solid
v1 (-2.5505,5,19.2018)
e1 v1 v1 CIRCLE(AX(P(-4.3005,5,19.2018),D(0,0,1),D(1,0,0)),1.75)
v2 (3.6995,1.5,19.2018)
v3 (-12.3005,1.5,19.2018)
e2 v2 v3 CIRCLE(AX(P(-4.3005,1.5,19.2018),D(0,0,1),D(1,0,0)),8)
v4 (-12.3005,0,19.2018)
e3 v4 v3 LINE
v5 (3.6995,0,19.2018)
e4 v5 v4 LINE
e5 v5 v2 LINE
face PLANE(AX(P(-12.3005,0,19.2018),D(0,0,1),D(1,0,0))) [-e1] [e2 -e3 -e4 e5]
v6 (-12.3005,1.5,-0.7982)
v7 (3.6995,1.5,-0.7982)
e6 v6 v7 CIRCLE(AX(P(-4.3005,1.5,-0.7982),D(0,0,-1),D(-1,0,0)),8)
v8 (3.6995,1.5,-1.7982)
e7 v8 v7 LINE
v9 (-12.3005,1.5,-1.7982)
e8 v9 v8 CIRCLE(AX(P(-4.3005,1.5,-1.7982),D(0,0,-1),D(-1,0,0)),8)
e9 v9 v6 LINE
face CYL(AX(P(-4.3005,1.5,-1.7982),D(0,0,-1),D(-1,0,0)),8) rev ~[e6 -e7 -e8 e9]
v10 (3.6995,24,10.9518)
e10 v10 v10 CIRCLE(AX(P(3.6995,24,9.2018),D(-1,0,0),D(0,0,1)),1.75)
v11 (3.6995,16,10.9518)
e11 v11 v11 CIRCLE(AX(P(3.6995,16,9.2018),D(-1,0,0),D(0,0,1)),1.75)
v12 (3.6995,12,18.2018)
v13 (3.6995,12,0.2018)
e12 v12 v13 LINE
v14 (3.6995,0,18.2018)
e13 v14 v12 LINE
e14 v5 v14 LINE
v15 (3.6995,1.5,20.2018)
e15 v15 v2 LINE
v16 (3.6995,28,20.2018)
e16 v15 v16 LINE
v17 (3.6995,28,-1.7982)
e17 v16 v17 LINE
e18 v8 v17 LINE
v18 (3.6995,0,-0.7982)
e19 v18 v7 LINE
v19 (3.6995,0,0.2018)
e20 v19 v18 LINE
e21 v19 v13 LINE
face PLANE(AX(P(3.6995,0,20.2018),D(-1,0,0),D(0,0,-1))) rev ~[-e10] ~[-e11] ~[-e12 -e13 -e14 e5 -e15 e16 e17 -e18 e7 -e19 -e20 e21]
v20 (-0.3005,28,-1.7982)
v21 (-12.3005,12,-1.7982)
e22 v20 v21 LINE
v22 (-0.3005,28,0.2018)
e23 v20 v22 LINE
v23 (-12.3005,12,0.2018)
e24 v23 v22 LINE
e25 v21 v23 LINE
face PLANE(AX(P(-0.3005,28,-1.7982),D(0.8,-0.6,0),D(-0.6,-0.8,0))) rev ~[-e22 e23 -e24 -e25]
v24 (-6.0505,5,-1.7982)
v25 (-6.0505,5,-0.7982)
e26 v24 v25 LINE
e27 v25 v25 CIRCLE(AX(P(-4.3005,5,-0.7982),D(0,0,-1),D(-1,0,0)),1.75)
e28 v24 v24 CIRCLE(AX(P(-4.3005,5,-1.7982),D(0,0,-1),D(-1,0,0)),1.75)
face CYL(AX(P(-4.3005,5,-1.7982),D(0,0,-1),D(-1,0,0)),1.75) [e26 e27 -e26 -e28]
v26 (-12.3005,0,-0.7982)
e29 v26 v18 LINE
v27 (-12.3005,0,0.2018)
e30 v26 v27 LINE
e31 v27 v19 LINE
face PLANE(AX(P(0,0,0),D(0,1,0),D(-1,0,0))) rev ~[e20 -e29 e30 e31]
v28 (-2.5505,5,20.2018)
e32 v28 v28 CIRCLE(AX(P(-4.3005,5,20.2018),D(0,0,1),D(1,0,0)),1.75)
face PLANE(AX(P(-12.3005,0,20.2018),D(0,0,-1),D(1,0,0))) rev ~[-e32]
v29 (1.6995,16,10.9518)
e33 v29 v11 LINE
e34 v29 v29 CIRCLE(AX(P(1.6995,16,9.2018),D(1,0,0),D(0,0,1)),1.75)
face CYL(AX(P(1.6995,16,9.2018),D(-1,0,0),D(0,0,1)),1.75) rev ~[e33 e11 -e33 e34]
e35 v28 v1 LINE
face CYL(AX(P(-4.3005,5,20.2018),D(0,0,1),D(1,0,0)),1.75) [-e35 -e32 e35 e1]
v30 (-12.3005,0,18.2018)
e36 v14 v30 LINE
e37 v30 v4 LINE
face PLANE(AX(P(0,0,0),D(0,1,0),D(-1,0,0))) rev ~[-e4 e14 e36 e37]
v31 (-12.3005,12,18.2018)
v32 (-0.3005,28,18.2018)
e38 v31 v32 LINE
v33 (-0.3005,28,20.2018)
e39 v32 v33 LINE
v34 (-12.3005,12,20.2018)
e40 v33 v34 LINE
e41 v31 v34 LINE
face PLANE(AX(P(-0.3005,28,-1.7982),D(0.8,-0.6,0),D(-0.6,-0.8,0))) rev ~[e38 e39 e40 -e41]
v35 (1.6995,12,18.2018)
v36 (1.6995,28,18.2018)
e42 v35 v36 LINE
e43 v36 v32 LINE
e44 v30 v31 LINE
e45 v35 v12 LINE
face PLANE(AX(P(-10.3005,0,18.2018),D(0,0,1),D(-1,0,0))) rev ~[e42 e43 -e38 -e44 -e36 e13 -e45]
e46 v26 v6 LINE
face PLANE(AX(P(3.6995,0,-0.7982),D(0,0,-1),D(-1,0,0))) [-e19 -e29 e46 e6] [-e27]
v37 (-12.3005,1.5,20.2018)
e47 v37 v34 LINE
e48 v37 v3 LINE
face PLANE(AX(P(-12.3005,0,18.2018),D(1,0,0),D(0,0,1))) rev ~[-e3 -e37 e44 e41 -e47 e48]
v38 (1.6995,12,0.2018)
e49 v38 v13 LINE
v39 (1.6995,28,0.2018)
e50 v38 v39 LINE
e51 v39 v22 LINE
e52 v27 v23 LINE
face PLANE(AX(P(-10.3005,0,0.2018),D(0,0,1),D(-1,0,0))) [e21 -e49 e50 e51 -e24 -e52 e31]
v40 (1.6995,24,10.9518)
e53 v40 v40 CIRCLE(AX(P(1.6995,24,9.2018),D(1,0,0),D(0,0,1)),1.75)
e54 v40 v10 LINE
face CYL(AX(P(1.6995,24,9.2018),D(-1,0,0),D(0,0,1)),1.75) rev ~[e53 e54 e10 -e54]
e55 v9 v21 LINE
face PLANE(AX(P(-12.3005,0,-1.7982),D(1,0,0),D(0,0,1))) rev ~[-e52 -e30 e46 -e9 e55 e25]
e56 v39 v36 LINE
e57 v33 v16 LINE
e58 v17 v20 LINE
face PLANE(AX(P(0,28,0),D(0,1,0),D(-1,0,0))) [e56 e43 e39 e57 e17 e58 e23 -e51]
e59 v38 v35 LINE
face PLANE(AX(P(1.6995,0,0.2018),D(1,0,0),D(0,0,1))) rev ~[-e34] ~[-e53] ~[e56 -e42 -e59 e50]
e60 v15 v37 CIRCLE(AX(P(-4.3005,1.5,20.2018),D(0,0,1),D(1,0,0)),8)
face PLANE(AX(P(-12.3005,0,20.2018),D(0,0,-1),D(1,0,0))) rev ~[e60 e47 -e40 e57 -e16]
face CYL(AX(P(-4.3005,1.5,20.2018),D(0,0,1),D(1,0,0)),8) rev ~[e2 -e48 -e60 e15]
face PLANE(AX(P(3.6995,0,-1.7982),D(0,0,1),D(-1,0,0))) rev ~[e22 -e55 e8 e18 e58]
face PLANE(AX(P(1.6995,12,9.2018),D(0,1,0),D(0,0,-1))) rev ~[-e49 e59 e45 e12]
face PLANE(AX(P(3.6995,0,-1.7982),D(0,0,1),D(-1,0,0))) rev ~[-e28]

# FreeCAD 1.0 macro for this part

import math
import FreeCAD as App
import Part
import Sketcher

V = App.Vector

doc = App.newDocument("Part")
params = doc.addObject("Spreadsheet::Sheet", "Params")
for row, (alias, value) in enumerate([
    ("sketch1_height", "18 mm"),
    ("sketch1_width", "14 mm"),
    ("sketch1_width2", "16 mm"),
    ("sketch1_height2", "2 mm"),
    ("pad1_length", "28 mm"),
    ("sketch2_diameter", "3.5 mm"),
    ("sketch2_height", "1.5 mm"),
    ("sketch2_radius", "8 mm"),
    ("pocket1_length", "1 mm"),
    ("sketch3_diameter", "3.5 mm"),
    ("sketch3_height", "1.5 mm"),
    ("sketch3_radius", "8 mm"),
    ("pocket2_length", "1 mm"),
    ("sketch4_diameter", "3.5 mm"),
    ("sketch4_height", "18 mm"),
    ("pocket3_length", "2 mm"),
    ("sketch5_height", "16 mm"),
    ("sketch5_width", "12 mm"),
    ("pocket4_length", "30 mm"),
], start=1):
    params.set(f"A{row}", alias)
    params.set(f"B{row}", "=" + value)
    params.setAlias(f"B{row}", alias)

body = doc.addObject("PartDesign::Body", "Body")

# Sketch on XZ plane
sketch1 = body.newObject("Sketcher::SketchObject", "Sketch")
sketch1.AttachmentSupport = (doc.getObject("XZ_Plane"), [""])
sketch1.MapMode = "FlatFace"
sketch1.addGeometry([
    Part.LineSegment(V(-12.3, 0.2, 0), V(1.7, 0.2, 0)),  # 0
    Part.LineSegment(V(1.7, 0.2, 0), V(1.7, 18.2, 0)),  # 1
    Part.LineSegment(V(1.7, 18.2, 0), V(-12.3, 18.2, 0)),  # 2
    Part.LineSegment(V(-12.3, 18.2, 0), V(-12.3, 20.2, 0)),  # 3
    Part.LineSegment(V(-12.3, 20.2, 0), V(3.7, 20.2, 0)),  # 4
    Part.LineSegment(V(3.7, 20.2, 0), V(3.7, -1.8, 0)),  # 5
    Part.LineSegment(V(3.7, -1.8, 0), V(-12.3, -1.8, 0)),  # 6
    Part.LineSegment(V(-12.3, -1.8, 0), V(-12.3, 0.2, 0)),  # 7
], False)
sketch1.addConstraint([
    Sketcher.Constraint("Coincident", 0, 2, 1, 1),
    Sketcher.Constraint("Coincident", 1, 2, 2, 1),
    Sketcher.Constraint("Coincident", 2, 2, 3, 1),
    Sketcher.Constraint("Coincident", 3, 2, 4, 1),
    Sketcher.Constraint("Coincident", 4, 2, 5, 1),
    Sketcher.Constraint("Coincident", 5, 2, 6, 1),
    Sketcher.Constraint("Coincident", 6, 2, 7, 1),
    Sketcher.Constraint("Coincident", 7, 2, 0, 1),
    Sketcher.Constraint("Horizontal", 0),
    Sketcher.Constraint("Vertical", 1),
    Sketcher.Constraint("Horizontal", 2),
    Sketcher.Constraint("Vertical", 3),
    Sketcher.Constraint("Horizontal", 4),
    Sketcher.Constraint("Vertical", 5),
    Sketcher.Constraint("Horizontal", 6),
    Sketcher.Constraint("Vertical", 7),
    Sketcher.Constraint("Vertical", 3, 2, 6, 2),
    Sketcher.Constraint("Equal", 3, 7),
    Sketcher.Constraint("DistanceY", 1, 1, 1, 2, 18.0),
    Sketcher.Constraint("DistanceX", 0, 1, 0, 2, 14.0),
    Sketcher.Constraint("DistanceX", 4, 1, 4, 2, 16.0),
    Sketcher.Constraint("DistanceY", 3, 1, 3, 2, 2.0),
    Sketcher.Constraint("DistanceX", -1, 1, 0, 2, 1.6995),
    Sketcher.Constraint("DistanceY", -1, 1, 0, 2, 0.2018),
])
sketch1.setExpression("Constraints[18]", "Params.sketch1_height")
sketch1.setExpression("Constraints[19]", "Params.sketch1_width")
sketch1.setExpression("Constraints[20]", "Params.sketch1_width2")
sketch1.setExpression("Constraints[21]", "Params.sketch1_height2")
pad1 = body.newObject("PartDesign::Pad", "Pad")
pad1.Profile = sketch1
pad1.setExpression("Length", "Params.pad1_length")
pad1.Reversed = True

# Sketch on XY plane
sketch2 = body.newObject("Sketcher::SketchObject", "Sketch001")
sketch2.AttachmentSupport = (doc.getObject("XY_Plane"), [""])
sketch2.MapMode = "FlatFace"
sketch2.AttachmentOffset = App.Placement(V(0, 0, 20.2018), App.Rotation())
sketch2.addGeometry([
    Part.LineSegment(V(-12.3, 1.5, 0), V(-12.3, 0, 0)),  # 0
    Part.LineSegment(V(-12.3, 0, 0), V(3.7, 0, 0)),  # 1
    Part.LineSegment(V(3.7, 0, 0), V(3.7, 1.5, 0)),  # 2
    Part.ArcOfCircle(Part.Circle(V(-4.3, 1.5, 0), V(0, 0, 1), 8), math.radians(0), math.radians(180)),  # 3
    Part.Circle(V(-4.3, 5, 0), V(0, 0, 1), 1.8),  # 4
], False)
sketch2.addConstraint([
    Sketcher.Constraint("Coincident", 0, 2, 1, 1),
    Sketcher.Constraint("Coincident", 1, 2, 2, 1),
    Sketcher.Constraint("Tangent", 2, 2, 3, 1),
    Sketcher.Constraint("Tangent", 3, 2, 0, 1),
    Sketcher.Constraint("Vertical", 0),
    Sketcher.Constraint("Horizontal", 1),
    Sketcher.Constraint("Vertical", 2),
    Sketcher.Constraint("PointOnObject", 0, 2, -1),
    Sketcher.Constraint("Vertical", 3, 3, 4, 3),
    Sketcher.Constraint("Diameter", 4, 3.5),
    Sketcher.Constraint("DistanceY", 0, 2, 0, 1, 1.5),
    Sketcher.Constraint("DistanceY", -1, 1, 4, 3, 5.0),
    Sketcher.Constraint("Radius", 3, 8.0),
    Sketcher.Constraint("DistanceX", 3, 3, -1, 1, 4.3005),
])
sketch2.setExpression("Constraints[9]", "Params.sketch2_diameter")
sketch2.setExpression("Constraints[10]", "Params.sketch2_height")
sketch2.setExpression("Constraints[12]", "Params.sketch2_radius")
pocket1 = body.newObject("PartDesign::Pocket", "Pocket")
pocket1.Profile = sketch2
pocket1.setExpression("Length", "Params.pocket1_length")

# Sketch on XY plane
sketch3 = body.newObject("Sketcher::SketchObject", "Sketch002")
sketch3.AttachmentSupport = (doc.getObject("XY_Plane"), [""])
sketch3.MapMode = "FlatFace"
sketch3.AttachmentOffset = App.Placement(V(0, 0, -1.7982), App.Rotation())
sketch3.addGeometry([
    Part.LineSegment(V(3.7, 1.5, 0), V(3.7, 0, 0)),  # 0
    Part.LineSegment(V(3.7, 0, 0), V(-12.3, 0, 0)),  # 1
    Part.LineSegment(V(-12.3, 0, 0), V(-12.3, 1.5, 0)),  # 2
    Part.ArcOfCircle(Part.Circle(V(-4.3, 1.5, 0), V(0, 0, 1), 8), math.radians(0), math.radians(180)),  # 3
    Part.Circle(V(-4.3, 5, 0), V(0, 0, 1), 1.8),  # 4
], False)
sketch3.addConstraint([
    Sketcher.Constraint("Coincident", 0, 2, 1, 1),
    Sketcher.Constraint("Coincident", 1, 2, 2, 1),
    Sketcher.Constraint("Tangent", 2, 2, 3, 2),
    Sketcher.Constraint("Tangent", 3, 1, 0, 1),
    Sketcher.Constraint("Vertical", 0),
    Sketcher.Constraint("Horizontal", 1),
    Sketcher.Constraint("Vertical", 2),
    Sketcher.Constraint("PointOnObject", 0, 2, -1),
    Sketcher.Constraint("Vertical", 3, 3, 4, 3),
    Sketcher.Constraint("Diameter", 4, 3.5),
    Sketcher.Constraint("DistanceY", 0, 2, 0, 1, 1.5),
    Sketcher.Constraint("DistanceY", -1, 1, 4, 3, 5.0),
    Sketcher.Constraint("Radius", 3, 8.0),
    Sketcher.Constraint("DistanceX", 3, 3, -1, 1, 4.3005),
])
sketch3.setExpression("Constraints[9]", "Params.sketch3_diameter")
sketch3.setExpression("Constraints[10]", "Params.sketch3_height")
sketch3.setExpression("Constraints[12]", "Params.sketch3_radius")
pocket2 = body.newObject("PartDesign::Pocket", "Pocket001")
pocket2.Profile = sketch3
pocket2.setExpression("Length", "Params.pocket2_length")
pocket2.Reversed = True

# Sketch on YZ plane
sketch4 = body.newObject("Sketcher::SketchObject", "Sketch003")
sketch4.AttachmentSupport = (doc.getObject("YZ_Plane"), [""])
sketch4.MapMode = "FlatFace"
sketch4.AttachmentOffset = App.Placement(V(0, 0, 1.6995), App.Rotation())
sketch4.addGeometry([
    Part.LineSegment(V(0, 0.2, 0), V(0, 18.2, 0)),  # 0
    Part.LineSegment(V(0, 18.2, 0), V(12, 18.2, 0)),  # 1
    Part.LineSegment(V(12, 18.2, 0), V(12, 0.2, 0)),  # 2
    Part.LineSegment(V(12, 0.2, 0), V(0, 0.2, 0)),  # 3
    Part.Circle(V(16, 9.2, 0), V(0, 0, 1), 1.8),  # 4
    Part.Circle(V(24, 9.2, 0), V(0, 0, 1), 1.8),  # 5
], False)
sketch4.addConstraint([
    Sketcher.Constraint("Coincident", 0, 2, 1, 1),
    Sketcher.Constraint("Coincident", 1, 2, 2, 1),
    Sketcher.Constraint("Coincident", 2, 2, 3, 1),
    Sketcher.Constraint("Coincident", 3, 2, 0, 1),
    Sketcher.Constraint("Vertical", 0),
    Sketcher.Constraint("Horizontal", 1),
    Sketcher.Constraint("Vertical", 2),
    Sketcher.Constraint("Horizontal", 3),
    Sketcher.Constraint("Equal", 4, 5),
    Sketcher.Constraint("PointOnObject", 0, 2, -2),
    Sketcher.Constraint("Horizontal", 4, 3, 5, 3),
    Sketcher.Constraint("Diameter", 4, 3.5),
    Sketcher.Constraint("DistanceX", -1, 1, 4, 3, 16.0),
    Sketcher.Constraint("DistanceX", 1, 2, 4, 3, 4.0),
    Sketcher.Constraint("DistanceY", 0, 1, 0, 2, 18.0),
    Sketcher.Constraint("DistanceX", -1, 1, 5, 3, 24.0),
    Sketcher.Constraint("DistanceY", 4, 3, 0, 2, 9.0),
    Sketcher.Constraint("DistanceY", -1, 1, 4, 3, 9.2018),
])
sketch4.setExpression("Constraints[11]", "Params.sketch4_diameter")
sketch4.setExpression("Constraints[14]", "Params.sketch4_height")
pocket3 = body.newObject("PartDesign::Pocket", "Pocket002")
pocket3.Profile = sketch4
pocket3.setExpression("Length", "Params.pocket3_length")
pocket3.Reversed = True

# Sketch on XY plane
sketch5 = body.newObject("Sketcher::SketchObject", "Sketch004")
sketch5.AttachmentSupport = (doc.getObject("XY_Plane"), [""])
sketch5.MapMode = "FlatFace"
sketch5.AttachmentOffset = App.Placement(V(0, 0, -1.7982), App.Rotation())
sketch5.addGeometry([
    Part.LineSegment(V(-12, 28, 0), V(0, 28, 0)),
    Part.LineSegment(V(0, 28, 0), V(-12, 12, 0)),
    Part.LineSegment(V(-12, 12, 0), V(-12, 28, 0)),
], False)
sketch5.addConstraint([
    Sketcher.Constraint("Coincident", 0, 2, 1, 1),
    Sketcher.Constraint("Coincident", 1, 2, 2, 1),
    Sketcher.Constraint("Coincident", 2, 2, 0, 1),
    Sketcher.Constraint("Horizontal", 0),
    Sketcher.Constraint("Vertical", 2),
    Sketcher.Constraint("DistanceY", 2, 1, 2, 2, 16.0),
    Sketcher.Constraint("DistanceX", 0, 1, 0, 2, 12.0),
    Sketcher.Constraint("DistanceY", -1, 1, 0, 2, 28.0),
    Sketcher.Constraint("DistanceX", 0, 2, -1, 1, 0.3005),
])
sketch5.setExpression("Constraints[5]", "Params.sketch5_height")
sketch5.setExpression("Constraints[6]", "Params.sketch5_width")
pocket4 = body.newObject("PartDesign::Pocket", "Pocket003")
pocket4.Profile = sketch5
pocket4.setExpression("Length", "Params.pocket4_length")
pocket4.Reversed = True

doc.recompute()
